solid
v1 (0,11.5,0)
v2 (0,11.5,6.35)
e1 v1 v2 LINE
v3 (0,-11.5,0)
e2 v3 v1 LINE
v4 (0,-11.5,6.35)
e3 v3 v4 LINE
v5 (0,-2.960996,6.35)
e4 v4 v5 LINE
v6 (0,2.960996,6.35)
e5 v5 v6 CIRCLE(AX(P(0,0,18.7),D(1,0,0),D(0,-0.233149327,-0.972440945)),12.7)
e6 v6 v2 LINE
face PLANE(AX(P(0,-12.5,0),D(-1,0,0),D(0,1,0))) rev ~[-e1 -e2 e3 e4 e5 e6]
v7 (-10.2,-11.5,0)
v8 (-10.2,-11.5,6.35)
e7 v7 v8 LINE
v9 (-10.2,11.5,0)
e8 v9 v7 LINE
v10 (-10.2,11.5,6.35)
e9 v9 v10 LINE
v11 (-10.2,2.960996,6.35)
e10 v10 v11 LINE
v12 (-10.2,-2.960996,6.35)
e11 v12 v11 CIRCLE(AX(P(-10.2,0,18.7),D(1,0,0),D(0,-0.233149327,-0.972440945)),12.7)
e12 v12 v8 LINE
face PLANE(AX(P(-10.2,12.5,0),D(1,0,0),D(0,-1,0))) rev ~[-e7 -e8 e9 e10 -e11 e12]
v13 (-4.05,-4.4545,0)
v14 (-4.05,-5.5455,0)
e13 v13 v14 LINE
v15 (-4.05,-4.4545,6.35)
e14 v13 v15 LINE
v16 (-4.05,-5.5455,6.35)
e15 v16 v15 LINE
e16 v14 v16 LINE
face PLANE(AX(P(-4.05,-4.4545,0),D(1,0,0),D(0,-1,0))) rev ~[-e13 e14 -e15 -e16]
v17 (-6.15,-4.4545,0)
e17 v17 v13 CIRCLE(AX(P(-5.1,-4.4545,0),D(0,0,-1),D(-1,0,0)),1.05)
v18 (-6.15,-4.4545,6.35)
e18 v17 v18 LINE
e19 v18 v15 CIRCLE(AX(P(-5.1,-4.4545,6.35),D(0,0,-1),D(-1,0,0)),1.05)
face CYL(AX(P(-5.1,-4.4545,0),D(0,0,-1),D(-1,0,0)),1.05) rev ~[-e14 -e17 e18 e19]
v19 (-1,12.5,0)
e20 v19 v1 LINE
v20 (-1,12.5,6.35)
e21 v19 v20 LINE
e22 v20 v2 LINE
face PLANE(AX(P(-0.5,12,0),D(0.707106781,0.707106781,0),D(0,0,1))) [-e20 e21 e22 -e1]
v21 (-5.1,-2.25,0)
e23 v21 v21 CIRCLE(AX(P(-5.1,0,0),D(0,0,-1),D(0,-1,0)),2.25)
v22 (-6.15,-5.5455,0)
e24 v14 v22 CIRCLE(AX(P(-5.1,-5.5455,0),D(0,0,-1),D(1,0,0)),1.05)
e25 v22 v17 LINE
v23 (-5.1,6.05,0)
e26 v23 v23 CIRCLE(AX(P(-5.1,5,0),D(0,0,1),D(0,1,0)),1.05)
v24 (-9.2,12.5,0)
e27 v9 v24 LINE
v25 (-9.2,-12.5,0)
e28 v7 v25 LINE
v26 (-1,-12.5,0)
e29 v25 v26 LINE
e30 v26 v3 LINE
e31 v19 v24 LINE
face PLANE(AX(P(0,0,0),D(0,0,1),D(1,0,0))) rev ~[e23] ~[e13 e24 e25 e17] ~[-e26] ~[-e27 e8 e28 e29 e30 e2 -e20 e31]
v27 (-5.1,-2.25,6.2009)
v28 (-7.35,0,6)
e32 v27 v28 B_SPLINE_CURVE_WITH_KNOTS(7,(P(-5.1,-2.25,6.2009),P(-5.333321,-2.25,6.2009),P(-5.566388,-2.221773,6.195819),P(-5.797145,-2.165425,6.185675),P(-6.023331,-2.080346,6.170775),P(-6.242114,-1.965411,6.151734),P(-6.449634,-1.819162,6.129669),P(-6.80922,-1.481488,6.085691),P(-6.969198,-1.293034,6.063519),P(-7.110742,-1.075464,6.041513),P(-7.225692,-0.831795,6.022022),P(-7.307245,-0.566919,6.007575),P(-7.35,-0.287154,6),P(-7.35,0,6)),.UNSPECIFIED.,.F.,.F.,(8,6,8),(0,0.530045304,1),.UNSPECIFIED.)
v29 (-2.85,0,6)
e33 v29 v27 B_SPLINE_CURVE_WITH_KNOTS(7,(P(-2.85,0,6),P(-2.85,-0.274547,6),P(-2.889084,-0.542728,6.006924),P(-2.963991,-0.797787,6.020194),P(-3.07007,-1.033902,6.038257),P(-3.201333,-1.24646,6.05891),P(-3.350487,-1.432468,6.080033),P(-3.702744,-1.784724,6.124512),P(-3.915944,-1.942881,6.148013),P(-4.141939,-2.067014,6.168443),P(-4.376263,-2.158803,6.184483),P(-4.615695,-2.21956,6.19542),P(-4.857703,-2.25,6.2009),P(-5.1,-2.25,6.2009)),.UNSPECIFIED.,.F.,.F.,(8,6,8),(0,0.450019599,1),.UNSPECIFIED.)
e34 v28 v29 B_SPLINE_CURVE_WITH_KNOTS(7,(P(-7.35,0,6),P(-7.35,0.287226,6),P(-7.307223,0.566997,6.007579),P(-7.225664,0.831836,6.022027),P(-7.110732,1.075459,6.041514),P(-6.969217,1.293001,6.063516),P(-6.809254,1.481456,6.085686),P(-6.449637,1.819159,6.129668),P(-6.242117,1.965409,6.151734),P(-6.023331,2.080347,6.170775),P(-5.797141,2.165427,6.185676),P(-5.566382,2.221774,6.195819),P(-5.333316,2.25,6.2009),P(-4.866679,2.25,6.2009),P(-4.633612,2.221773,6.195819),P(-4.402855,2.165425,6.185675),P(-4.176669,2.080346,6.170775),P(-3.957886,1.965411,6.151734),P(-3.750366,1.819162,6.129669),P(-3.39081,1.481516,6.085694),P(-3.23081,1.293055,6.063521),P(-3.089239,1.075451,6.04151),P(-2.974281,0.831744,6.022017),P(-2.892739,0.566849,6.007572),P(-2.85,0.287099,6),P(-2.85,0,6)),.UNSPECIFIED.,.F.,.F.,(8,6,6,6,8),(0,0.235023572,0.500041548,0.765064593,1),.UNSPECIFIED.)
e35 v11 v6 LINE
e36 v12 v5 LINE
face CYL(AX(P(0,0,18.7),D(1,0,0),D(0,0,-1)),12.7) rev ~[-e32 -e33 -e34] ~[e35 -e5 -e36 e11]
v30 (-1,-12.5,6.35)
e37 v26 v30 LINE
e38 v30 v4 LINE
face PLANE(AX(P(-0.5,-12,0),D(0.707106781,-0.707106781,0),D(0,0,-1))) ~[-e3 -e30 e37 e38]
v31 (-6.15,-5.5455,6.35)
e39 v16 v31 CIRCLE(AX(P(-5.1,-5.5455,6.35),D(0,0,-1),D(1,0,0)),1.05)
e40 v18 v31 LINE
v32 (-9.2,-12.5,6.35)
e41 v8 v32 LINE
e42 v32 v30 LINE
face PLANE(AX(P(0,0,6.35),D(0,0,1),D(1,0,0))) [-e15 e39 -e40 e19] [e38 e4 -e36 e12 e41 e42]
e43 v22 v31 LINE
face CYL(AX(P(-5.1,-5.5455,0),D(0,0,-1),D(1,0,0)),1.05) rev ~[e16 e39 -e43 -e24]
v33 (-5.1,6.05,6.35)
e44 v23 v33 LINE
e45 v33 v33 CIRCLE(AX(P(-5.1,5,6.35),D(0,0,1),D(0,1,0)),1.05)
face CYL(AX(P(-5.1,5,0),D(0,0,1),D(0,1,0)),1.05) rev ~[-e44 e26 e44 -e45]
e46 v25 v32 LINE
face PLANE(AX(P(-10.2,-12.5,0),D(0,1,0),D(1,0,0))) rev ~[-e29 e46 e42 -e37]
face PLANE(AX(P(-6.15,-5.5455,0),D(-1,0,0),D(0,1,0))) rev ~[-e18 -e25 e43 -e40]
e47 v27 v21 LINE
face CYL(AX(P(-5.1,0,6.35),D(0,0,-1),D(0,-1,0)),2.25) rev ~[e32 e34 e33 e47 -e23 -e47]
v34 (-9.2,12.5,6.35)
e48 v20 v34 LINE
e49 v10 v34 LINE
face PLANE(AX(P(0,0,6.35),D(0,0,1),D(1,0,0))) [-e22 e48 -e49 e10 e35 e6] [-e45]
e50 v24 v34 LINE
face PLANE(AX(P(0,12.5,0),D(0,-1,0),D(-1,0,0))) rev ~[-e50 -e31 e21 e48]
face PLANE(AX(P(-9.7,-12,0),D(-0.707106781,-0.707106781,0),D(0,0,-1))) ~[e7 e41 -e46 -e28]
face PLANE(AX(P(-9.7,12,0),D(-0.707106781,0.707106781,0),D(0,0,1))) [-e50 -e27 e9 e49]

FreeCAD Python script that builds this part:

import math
import FreeCAD as App
import Part
import Sketcher
Q = App.Units.Quantity


def edges_at(feature, points):
    """Names of the edges that pass closest to the given points."""
    edges = feature.Shape.Edges
    near = lambda p: min(range(len(edges)), key=lambda i: edges[i].distToShape(Part.Vertex(*p))[0])
    return sorted({f"Edge{near(p) + 1}" for p in points})

doc = App.newDocument("Part")
body = doc.addObject("PartDesign::Body", "Body")

# Sketch on XY plane
sketch1 = body.newObject("Sketcher::SketchObject", "Sketch")
sketch1.AttachmentSupport = (doc.getObject("XY_Plane"), [""])
sketch1.MapMode = "FlatFace"
sketch1.addGeometry([
    Part.LineSegment(App.Vector(-10, 12, 0), App.Vector(-10, -12, 0)),
    Part.LineSegment(App.Vector(-10, -12, 0), App.Vector(0, -12, 0)),
    Part.LineSegment(App.Vector(0, -12, 0), App.Vector(0, 12, 0)),
    Part.LineSegment(App.Vector(0, 12, 0), App.Vector(-10, 12, 0)),
], False)
sketch1.addConstraint([
    Sketcher.Constraint("Coincident", 0, 2, 1, 1),
    Sketcher.Constraint("Coincident", 1, 2, 2, 1),
    Sketcher.Constraint("Coincident", 2, 2, 3, 1),
    Sketcher.Constraint("Coincident", 3, 2, 0, 1),
    Sketcher.Constraint("Vertical", 0),
    Sketcher.Constraint("Horizontal", 1),
    Sketcher.Constraint("Vertical", 2),
    Sketcher.Constraint("Horizontal", 3),
    Sketcher.Constraint("Symmetric", 1, 2, 2, 2, -1, 1),
    Sketcher.Constraint("DistanceY", 0, 2, 0, 1, Q("25 mm")),
    Sketcher.Constraint("DistanceX", 1, 1, 1, 2, Q("10.2 mm")),
])
pad1 = body.newObject("PartDesign::Pad", "Pad")
pad1.Profile = sketch1
pad1.Length = 6.35

# Sketch on XY plane
sketch2 = body.newObject("Sketcher::SketchObject", "Sketch001")
sketch2.AttachmentSupport = (doc.getObject("XY_Plane"), [""])
sketch2.MapMode = "FlatFace"
sketch2.AttachmentOffset = App.Placement(App.Vector(0, 0, 6.35), App.Rotation())
sketch2.addGeometry(Part.Circle(App.Vector(-5.1, 0, 0), App.Vector(0, 0, 1), 2.2), False)
sketch2.addConstraint([
    Sketcher.Constraint("PointOnObject", 0, 3, -1),
    Sketcher.Constraint("Diameter", 0, Q("4.5 mm")),
    Sketcher.Constraint("DistanceX", 0, 3, -1, 1, Q("5.1 mm")),
])
doc.recompute()
hole = body.newObject("PartDesign::Hole", "Hole")
hole.Profile = sketch2
hole.ThreadType = "None"
hole.Diameter = 4.5
hole.DepthType = "Dimension"
hole.Depth = 12.3
hole.DrillPoint = "Flat"

# Sketch on XY plane
sketch3 = body.newObject("Sketcher::SketchObject", "Sketch002")
sketch3.AttachmentSupport = (doc.getObject("XY_Plane"), [""])
sketch3.MapMode = "FlatFace"
sketch3.addGeometry(Part.Circle(App.Vector(-5.1, 5, 0), App.Vector(0, 0, 1), 1.1), False)
sketch3.addConstraint([
    Sketcher.Constraint("Diameter", 0, Q("2.1 mm")),
    Sketcher.Constraint("DistanceY", -1, 1, 0, 3, Q("5 mm")),
    Sketcher.Constraint("DistanceX", 0, 3, -1, 1, Q("5.1 mm")),
])
doc.recompute()
hole2 = body.newObject("PartDesign::Hole", "Hole001")
hole2.Profile = sketch3
hole2.ThreadType = "None"
hole2.Diameter = 2.1
hole2.DepthType = "ThroughAll"
hole2.Reversed = True

# Sketch on XY plane
sketch4 = body.newObject("Sketcher::SketchObject", "Sketch003")
sketch4.AttachmentSupport = (doc.getObject("XY_Plane"), [""])
sketch4.MapMode = "FlatFace"
sketch4.addGeometry([
    Part.ArcOfCircle(Part.Circle(App.Vector(-5.1, -5.5, 0), App.Vector(0, 0, 1), 1), math.radians(180), math.radians(360)),
    Part.LineSegment(App.Vector(-6.2, -5.5, 0), App.Vector(-6.2, -4.5, 0)),
    Part.ArcOfCircle(Part.Circle(App.Vector(-5.1, -4.5, 0), App.Vector(0, 0, 1), 1.1), math.radians(0), math.radians(180)),
    Part.LineSegment(App.Vector(-4, -4.5, 0), App.Vector(-4, -5.5, 0)),
], False)
sketch4.addConstraint([
    Sketcher.Constraint("Tangent", 0, 1, 1, 1),
    Sketcher.Constraint("Tangent", 1, 2, 2, 2),
    Sketcher.Constraint("Tangent", 2, 1, 3, 1),
    Sketcher.Constraint("Tangent", 3, 2, 0, 2),
    Sketcher.Constraint("Vertical", 1),
    Sketcher.Constraint("Vertical", 3),
    Sketcher.Constraint("Radius", 0, Q("1.05 mm")),
    Sketcher.Constraint("DistanceY", 1, 1, 1, 2, Q("1.091 mm")),
    Sketcher.Constraint("DistanceX", 0, 3, -1, 1, Q("5.1 mm")),
    Sketcher.Constraint("DistanceY", 0, 3, -1, 1, Q("5.5455 mm")),
])
pocket1 = body.newObject("PartDesign::Pocket", "Pocket")
pocket1.Profile = sketch4
pocket1.Type = "ThroughAll"
pocket1.Reversed = True
doc.recompute()

chamfer = body.newObject("PartDesign::Chamfer", "Chamfer")
chamfer.Base = (pocket1, edges_at(pocket1, [
    (-10.2, -12.5, 3.175),
    (0, -12.5, 3.175),
    (0, 12.5, 3.175),
    (-10.2, 12.5, 3.175),
]))
chamfer.Size = 1

# Sketch on YZ plane
sketch5 = body.newObject("Sketcher::SketchObject", "Sketch004")
sketch5.AttachmentSupport = (doc.getObject("YZ_Plane"), [""])
sketch5.MapMode = "FlatFace"
sketch5.addGeometry(Part.Circle(App.Vector(0, 19, 0), App.Vector(0, 0, 1), 13), False)
sketch5.addConstraint([
    Sketcher.Constraint("PointOnObject", 0, 3, -2),
    Sketcher.Constraint("Diameter", 0, Q("25.4 mm")),
    Sketcher.Constraint("DistanceY", -1, 1, 0, 3, Q("18.7 mm")),
])
pocket2 = body.newObject("PartDesign::Pocket", "Pocket001")
pocket2.Profile = sketch5
pocket2.Length = 10.2

doc.recompute()
